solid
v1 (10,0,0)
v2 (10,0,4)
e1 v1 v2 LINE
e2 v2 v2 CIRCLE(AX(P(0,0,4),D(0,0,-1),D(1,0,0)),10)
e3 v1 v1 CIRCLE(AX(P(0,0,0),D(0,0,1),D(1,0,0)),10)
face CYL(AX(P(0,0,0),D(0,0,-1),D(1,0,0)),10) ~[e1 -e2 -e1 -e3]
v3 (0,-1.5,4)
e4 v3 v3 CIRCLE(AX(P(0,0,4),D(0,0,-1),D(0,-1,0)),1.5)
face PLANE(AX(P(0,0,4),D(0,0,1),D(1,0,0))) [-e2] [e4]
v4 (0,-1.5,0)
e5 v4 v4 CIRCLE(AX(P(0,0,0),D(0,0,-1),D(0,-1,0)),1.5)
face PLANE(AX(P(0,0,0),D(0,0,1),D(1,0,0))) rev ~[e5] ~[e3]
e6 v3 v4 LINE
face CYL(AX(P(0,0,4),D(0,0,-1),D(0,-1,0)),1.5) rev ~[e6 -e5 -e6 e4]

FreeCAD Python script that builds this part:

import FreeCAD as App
import Part
import Sketcher

V = App.Vector
Q = App.Units.Quantity

doc = App.newDocument("Part")
body = doc.addObject("PartDesign::Body", "Body")

# Sketch on XY plane
sketch1 = body.newObject("Sketcher::SketchObject", "Sketch")
sketch1.AttachmentSupport = (doc.getObject("XY_Plane"), [""])
sketch1.MapMode = "FlatFace"
sketch1.addGeometry(Part.Circle(V(0, 0, 0), V(0, 0, 1), 10), False)
sketch1.addConstraint(Sketcher.Constraint("Coincident", 0, 3, -1, 1))
sketch1.addConstraint(Sketcher.Constraint("Diameter", 0, Q("20 mm")))
pad1 = body.newObject("PartDesign::Pad", "Pad")
pad1.Profile = sketch1
pad1.Length = 4

# Sketch on XY plane
sketch2 = body.newObject("Sketcher::SketchObject", "Sketch001")
sketch2.AttachmentSupport = (doc.getObject("XY_Plane"), [""])
sketch2.MapMode = "FlatFace"
sketch2.AttachmentOffset = App.Placement(V(0, 0, 4), App.Rotation())
sketch2.addGeometry(Part.Circle(V(0, 0, 0), V(0, 0, 1), 1.5), False)
sketch2.addConstraint(Sketcher.Constraint("Coincident", 0, 3, -1, 1))
sketch2.addConstraint(Sketcher.Constraint("Diameter", 0, Q("3 mm")))
doc.recompute()
hole = body.newObject("PartDesign::Hole", "Hole")
hole.Profile = sketch2
hole.ThreadType = "None"
hole.Diameter = 3
hole.DepthType = "ThroughAll"

doc.recompute()
